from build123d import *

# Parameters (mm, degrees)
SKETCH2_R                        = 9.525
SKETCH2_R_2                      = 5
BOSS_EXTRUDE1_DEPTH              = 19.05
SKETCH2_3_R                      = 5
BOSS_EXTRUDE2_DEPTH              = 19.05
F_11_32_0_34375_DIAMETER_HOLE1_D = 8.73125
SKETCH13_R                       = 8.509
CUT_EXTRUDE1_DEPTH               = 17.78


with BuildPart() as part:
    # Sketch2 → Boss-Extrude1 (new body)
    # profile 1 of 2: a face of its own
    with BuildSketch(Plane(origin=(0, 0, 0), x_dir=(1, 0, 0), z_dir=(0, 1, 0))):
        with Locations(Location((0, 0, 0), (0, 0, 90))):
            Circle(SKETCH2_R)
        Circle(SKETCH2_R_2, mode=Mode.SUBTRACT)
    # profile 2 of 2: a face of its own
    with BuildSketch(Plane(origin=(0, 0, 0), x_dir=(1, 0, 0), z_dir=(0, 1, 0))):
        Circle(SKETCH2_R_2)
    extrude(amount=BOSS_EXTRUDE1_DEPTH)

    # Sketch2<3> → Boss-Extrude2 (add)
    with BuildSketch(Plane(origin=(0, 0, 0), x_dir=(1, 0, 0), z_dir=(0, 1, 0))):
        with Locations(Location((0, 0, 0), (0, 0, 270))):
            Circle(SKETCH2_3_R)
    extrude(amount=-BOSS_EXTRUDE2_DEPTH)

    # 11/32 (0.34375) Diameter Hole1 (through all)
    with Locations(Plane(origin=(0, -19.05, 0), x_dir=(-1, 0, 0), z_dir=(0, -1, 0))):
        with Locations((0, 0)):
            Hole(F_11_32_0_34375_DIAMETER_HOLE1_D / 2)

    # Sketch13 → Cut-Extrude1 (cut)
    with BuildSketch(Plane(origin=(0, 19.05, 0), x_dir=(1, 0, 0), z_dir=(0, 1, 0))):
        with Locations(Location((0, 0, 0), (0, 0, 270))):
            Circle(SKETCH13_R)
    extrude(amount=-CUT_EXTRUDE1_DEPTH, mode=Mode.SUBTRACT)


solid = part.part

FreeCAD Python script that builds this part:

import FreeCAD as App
import Part
import Sketcher
Q = App.Units.Quantity

doc = App.newDocument("Part")
body = doc.addObject("PartDesign::Body", "Body")

# Sketch on XZ plane
sketch1 = body.newObject("Sketcher::SketchObject", "Sketch")
sketch1.AttachmentSupport = (doc.getObject("XZ_Plane"), [""])
sketch1.MapMode = "FlatFace"
sketch1.addGeometry(Part.Circle(App.Vector(0, 0, 0), App.Vector(0, 0, 1), 10), False)
sketch1.addConstraint([
    Sketcher.Constraint("Coincident", 0, 3, -1, 1),
    Sketcher.Constraint("Diameter", 0, Q("0.75 in")),
])
pad1 = body.newObject("PartDesign::Pad", "Pad")
pad1.Profile = sketch1
pad1.Length = Q("0.75 in")
pad1.Reversed = True

# Sketch on XZ plane
sketch2 = body.newObject("Sketcher::SketchObject", "Sketch001")
sketch2.AttachmentSupport = (doc.getObject("XZ_Plane"), [""])
sketch2.MapMode = "FlatFace"
sketch2.addGeometry(Part.Circle(App.Vector(0, 0, 0), App.Vector(0, 0, 1), 5), False)
sketch2.addConstraint([
    Sketcher.Constraint("Coincident", 0, 3, -1, 1),
    Sketcher.Constraint("Diameter", 0, Q("10 mm")),
])
pad2 = body.newObject("PartDesign::Pad", "Pad001")
pad2.Profile = sketch2
pad2.Length = Q("0.75 in")

# Sketch on XZ plane
sketch3 = body.newObject("Sketcher::SketchObject", "Sketch002")
sketch3.AttachmentSupport = (doc.getObject("XZ_Plane"), [""])
sketch3.MapMode = "FlatFace"
sketch3.AttachmentOffset = App.Placement(App.Vector(0, 0, 0.75 * 25.4), App.Rotation())
sketch3.addGeometry(Part.Circle(App.Vector(0, 0, 0), App.Vector(0, 0, 1), 4.4), False)
sketch3.addConstraint([
    Sketcher.Constraint("Coincident", 0, 3, -1, 1),
    Sketcher.Constraint("Diameter", 0, Q("0.34375 in")),
])
doc.recompute()
hole = body.newObject("PartDesign::Hole", "Hole")
hole.Profile = sketch3
hole.ThreadType = "None"
hole.Diameter = Q("0.34375 in")
hole.DepthType = "ThroughAll"

# Sketch on XZ plane
sketch4 = body.newObject("Sketcher::SketchObject", "Sketch003")
sketch4.AttachmentSupport = (doc.getObject("XZ_Plane"), [""])
sketch4.MapMode = "FlatFace"
sketch4.AttachmentOffset = App.Placement(App.Vector(0, 0, -0.75 * 25.4), App.Rotation())
sketch4.addGeometry(Part.Circle(App.Vector(0, 0, 0), App.Vector(0, 0, 1), 9), False)
sketch4.addConstraint([
    Sketcher.Constraint("Coincident", 0, 3, -1, 1),
    Sketcher.Constraint("Diameter", 0, Q("0.67 in")),
])
pocket1 = body.newObject("PartDesign::Pocket", "Pocket")
pocket1.Profile = sketch4
pocket1.Length = Q("0.7 in")
pocket1.Reversed = True

doc.recompute()
